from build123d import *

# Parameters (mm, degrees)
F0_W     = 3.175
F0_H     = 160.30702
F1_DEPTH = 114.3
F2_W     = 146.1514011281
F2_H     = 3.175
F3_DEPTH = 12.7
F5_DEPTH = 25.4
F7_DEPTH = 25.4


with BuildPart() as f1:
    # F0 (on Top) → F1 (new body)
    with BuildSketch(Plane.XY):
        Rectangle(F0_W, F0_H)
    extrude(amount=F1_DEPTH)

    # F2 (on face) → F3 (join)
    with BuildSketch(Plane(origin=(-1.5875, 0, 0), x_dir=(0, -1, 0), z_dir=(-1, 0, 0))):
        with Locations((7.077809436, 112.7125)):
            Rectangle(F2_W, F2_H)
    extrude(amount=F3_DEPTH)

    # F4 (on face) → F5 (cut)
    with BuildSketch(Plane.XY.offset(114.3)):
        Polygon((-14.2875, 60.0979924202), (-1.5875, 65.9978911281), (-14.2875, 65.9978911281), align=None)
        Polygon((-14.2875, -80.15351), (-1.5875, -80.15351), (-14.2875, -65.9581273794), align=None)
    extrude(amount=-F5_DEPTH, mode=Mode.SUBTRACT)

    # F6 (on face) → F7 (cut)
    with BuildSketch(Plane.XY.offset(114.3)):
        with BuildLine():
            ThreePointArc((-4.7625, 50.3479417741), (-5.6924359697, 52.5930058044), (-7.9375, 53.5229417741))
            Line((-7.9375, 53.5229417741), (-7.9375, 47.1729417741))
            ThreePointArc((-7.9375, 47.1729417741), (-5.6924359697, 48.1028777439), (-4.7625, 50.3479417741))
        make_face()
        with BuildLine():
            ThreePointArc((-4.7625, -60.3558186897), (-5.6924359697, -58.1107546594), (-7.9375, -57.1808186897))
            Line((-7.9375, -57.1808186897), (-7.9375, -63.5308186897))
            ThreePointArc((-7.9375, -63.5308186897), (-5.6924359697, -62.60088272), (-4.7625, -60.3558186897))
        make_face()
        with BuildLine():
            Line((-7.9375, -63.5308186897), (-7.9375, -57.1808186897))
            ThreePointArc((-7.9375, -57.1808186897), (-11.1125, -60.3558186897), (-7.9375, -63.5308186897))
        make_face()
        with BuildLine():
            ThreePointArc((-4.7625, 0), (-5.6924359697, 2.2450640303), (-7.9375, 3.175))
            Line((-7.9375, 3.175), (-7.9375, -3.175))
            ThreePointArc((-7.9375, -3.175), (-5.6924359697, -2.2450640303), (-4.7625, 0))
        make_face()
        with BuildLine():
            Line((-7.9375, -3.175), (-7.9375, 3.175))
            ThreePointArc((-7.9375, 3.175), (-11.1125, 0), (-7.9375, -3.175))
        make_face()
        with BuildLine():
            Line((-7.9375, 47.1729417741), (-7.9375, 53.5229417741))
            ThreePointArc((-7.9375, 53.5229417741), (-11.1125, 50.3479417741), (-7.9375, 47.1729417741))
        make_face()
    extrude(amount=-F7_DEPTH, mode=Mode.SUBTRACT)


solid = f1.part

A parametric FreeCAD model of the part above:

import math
import FreeCAD as App
import Part
import Sketcher
from FreeCAD import Vector
Q = App.Units.Quantity

doc = App.newDocument("Part")
body = doc.addObject("PartDesign::Body", "Body")

sketch1 = doc.addObject("Sketcher::SketchObject", "Sketch")
body.addObject(sketch1)
sketch1.AttachmentSupport = (doc.XY_Plane, [""])
sketch1.MapMode = "FlatFace"
sketch1.addGeometry([
    Part.LineSegment(Vector(-1.6, 80.2, 0), Vector(-1.6, -80.2, 0)),
    Part.LineSegment(Vector(-1.6, -80.2, 0), Vector(1.6, -80.2, 0)),
    Part.LineSegment(Vector(1.6, -80.2, 0), Vector(1.6, 80.2, 0)),
    Part.LineSegment(Vector(1.6, 80.2, 0), Vector(-1.6, 80.2, 0)),
], False)
sketch1.addConstraint([
    Sketcher.Constraint("Coincident", 0, 2, 1, 1),
    Sketcher.Constraint("Coincident", 1, 2, 2, 1),
    Sketcher.Constraint("Coincident", 2, 2, 3, 1),
    Sketcher.Constraint("Coincident", 3, 2, 0, 1),
    Sketcher.Constraint("Vertical", 0),
    Sketcher.Constraint("Horizontal", 1),
    Sketcher.Constraint("Vertical", 2),
    Sketcher.Constraint("Horizontal", 3),
    Sketcher.Constraint("Symmetric", 0, 2, 2, 2, -1, 1),
    Sketcher.Constraint("DistanceX", 1, 1, 1, 2, Q("0.125 in")),
    Sketcher.Constraint("DistanceY", 0, 2, 0, 1, Q("6.3113 in")),
])
pad1 = doc.addObject("PartDesign::Pad", "Pad")
body.addObject(pad1)
pad1.Profile = sketch1
pad1.Length = Q("4.5 in")

sketch2 = doc.addObject("Sketcher::SketchObject", "Sketch001")
body.addObject(sketch2)
sketch2.AttachmentSupport = (doc.YZ_Plane, [""])
sketch2.MapMode = "FlatFace"
sketch2.AttachmentOffset = App.Placement(Vector(0, 0, -0.0625 * 25.4), App.Rotation())
sketch2.addGeometry([
    Part.LineSegment(Vector(66, 114.3, 0), Vector(66, 111.1, 0)),
    Part.LineSegment(Vector(66, 111.1, 0), Vector(-80.2, 111.1, 0)),
    Part.LineSegment(Vector(-80.2, 111.1, 0), Vector(-80.2, 114.3, 0)),
    Part.LineSegment(Vector(-80.2, 114.3, 0), Vector(66, 114.3, 0)),
], False)
sketch2.addConstraint([
    Sketcher.Constraint("Coincident", 0, 2, 1, 1),
    Sketcher.Constraint("Coincident", 1, 2, 2, 1),
    Sketcher.Constraint("Coincident", 2, 2, 3, 1),
    Sketcher.Constraint("Coincident", 3, 2, 0, 1),
    Sketcher.Constraint("Vertical", 0),
    Sketcher.Constraint("Horizontal", 1),
    Sketcher.Constraint("Vertical", 2),
    Sketcher.Constraint("Horizontal", 3),
    Sketcher.Constraint("DistanceY", -1, 1, 2, 2, Q("4.5 in")),
    Sketcher.Constraint("DistanceY", 0, 2, 0, 1, Q("0.125 in")),
    Sketcher.Constraint("DistanceX", 1, 2, 1, 1, 146.151401),
    Sketcher.Constraint("DistanceX", -1, 1, 0, 2, 65.997891),
])
pad2 = doc.addObject("PartDesign::Pad", "Pad001")
body.addObject(pad2)
pad2.Profile = sketch2
pad2.Length = Q("0.5 in")
pad2.Reversed = True

sketch3 = doc.addObject("Sketcher::SketchObject", "Sketch002")
body.addObject(sketch3)
sketch3.AttachmentSupport = (doc.XY_Plane, [""])
sketch3.MapMode = "FlatFace"
sketch3.AttachmentOffset = App.Placement(Vector(0, 0, 4.5 * 25.4), App.Rotation())
sketch3.addGeometry([
    Part.LineSegment(Vector(-14, 60, 0), Vector(-2, 66, 0)),
    Part.LineSegment(Vector(-2, 66, 0), Vector(-14, 66, 0)),
    Part.LineSegment(Vector(-14, 66, 0), Vector(-14, 60, 0)),
    Part.LineSegment(Vector(-14, -80, 0), Vector(-2, -80, 0)),
    Part.LineSegment(Vector(-2, -80, 0), Vector(-14, -66, 0)),
    Part.LineSegment(Vector(-14, -66, 0), Vector(-14, -80, 0)),
], False)
sketch3.addConstraint([
    Sketcher.Constraint("Coincident", 0, 2, 1, 1),
    Sketcher.Constraint("Coincident", 1, 2, 2, 1),
    Sketcher.Constraint("Coincident", 2, 2, 0, 1),
    Sketcher.Constraint("Coincident", 3, 2, 4, 1),
    Sketcher.Constraint("Coincident", 4, 2, 5, 1),
    Sketcher.Constraint("Coincident", 5, 2, 3, 1),
    Sketcher.Constraint("Horizontal", 1),
    Sketcher.Constraint("Vertical", 2),
    Sketcher.Constraint("Horizontal", 3),
    Sketcher.Constraint("Vertical", 5),
    Sketcher.Constraint("Vertical", 0, 2, 3, 2),
    Sketcher.Constraint("Vertical", 2, 2, 4, 2),
    Sketcher.Constraint("DistanceX", 1, 2, 1, 1, Q("0.5 in")),
    Sketcher.Constraint("DistanceX", 0, 2, -1, 1, Q("0.0625 in")),
    Sketcher.Constraint("DistanceY", 2, 2, 2, 1, 5.899899),
    Sketcher.Constraint("DistanceY", 3, 2, 0, 2, 146.151401),
    Sketcher.Constraint("Distance", 4, 19.04728),
    Sketcher.Constraint("DistanceY", -1, 1, 0, 2, 65.997891),
])
pocket1 = doc.addObject("PartDesign::Pocket", "Pocket")
body.addObject(pocket1)
pocket1.Profile = sketch3
pocket1.Length = Q("1 in")

sketch4 = doc.addObject("Sketcher::SketchObject", "Sketch003")
body.addObject(sketch4)
sketch4.AttachmentSupport = (doc.XY_Plane, [""])
sketch4.MapMode = "FlatFace"
sketch4.AttachmentOffset = App.Placement(Vector(0, 0, 4.5 * 25.4), App.Rotation())
sketch4.addGeometry([
    Part.ArcOfCircle(Part.Circle(Vector(-7.9, 50.3, 0), Vector(0, 0, 1), 3.2), math.radians(0), math.radians(90)),
    Part.ArcOfCircle(Part.Circle(Vector(-7.9, 50.3, 0), Vector(0, 0, 1), 3.2), math.radians(90), math.radians(270)),
    Part.ArcOfCircle(Part.Circle(Vector(-7.9, 50.3, 0), Vector(0, 0, 1), 3.2), math.radians(-90), math.radians(0)),
    Part.ArcOfCircle(Part.Circle(Vector(-7.9, -60.4, 0), Vector(0, 0, 1), 3.2), math.radians(0), math.radians(90)),
    Part.ArcOfCircle(Part.Circle(Vector(-7.9, -60.4, 0), Vector(0, 0, 1), 3.2), math.radians(90), math.radians(270)),
    Part.ArcOfCircle(Part.Circle(Vector(-7.9, -60.4, 0), Vector(0, 0, 1), 3.2), math.radians(-90), math.radians(0)),
    Part.ArcOfCircle(Part.Circle(Vector(-7.9, 0, 0), Vector(0, 0, 1), 3.2), math.radians(0), math.radians(90)),
    Part.ArcOfCircle(Part.Circle(Vector(-7.9, 0, 0), Vector(0, 0, 1), 3.2), math.radians(90), math.radians(270)),
    Part.ArcOfCircle(Part.Circle(Vector(-7.9, 0, 0), Vector(0, 0, 1), 3.2), math.radians(-90), math.radians(0)),
], False)
sketch4.addConstraint([
    Sketcher.Constraint("Tangent", 0, 2, 1, 1),
    Sketcher.Constraint("Tangent", 1, 2, 2, 1),
    Sketcher.Constraint("Tangent", 2, 2, 0, 1),
    Sketcher.Constraint("Tangent", 3, 2, 4, 1),
    Sketcher.Constraint("Tangent", 4, 2, 5, 1),
    Sketcher.Constraint("Tangent", 5, 2, 3, 1),
    Sketcher.Constraint("Tangent", 6, 2, 7, 1),
    Sketcher.Constraint("Tangent", 7, 2, 8, 1),
    Sketcher.Constraint("Tangent", 8, 2, 6, 1),
    Sketcher.Constraint("Equal", 2, 3),
    Sketcher.Constraint("Equal", 5, 6),
    Sketcher.Constraint("Symmetric", 6, 2, 7, 2, -1),
    Sketcher.Constraint("PointOnObject", 8, 2, -1),
    Sketcher.Constraint("Horizontal", 1, 3, 2, 2),
    Sketcher.Constraint("Horizontal", 4, 3, 5, 2),
    Sketcher.Constraint("Vertical", 2, 3, 3, 3),
    Sketcher.Constraint("Vertical", 5, 3, 6, 3),
    Sketcher.Constraint("Vertical", 8, 3, 0, 2),
    Sketcher.Constraint("Vertical", 0, 2, 1, 2),
    Sketcher.Constraint("Vertical", 1, 2, 3, 2),
    Sketcher.Constraint("Vertical", 3, 2, 4, 2),
    Sketcher.Constraint("Vertical", 4, 2, 6, 2),
    Sketcher.Constraint("Radius", 0, Q("0.125 in")),
    Sketcher.Constraint("DistanceX", 0, 3, -1, 1, Q("0.3125 in")),
    Sketcher.Constraint("DistanceY", -1, 1, 0, 3, 50.347942),
    Sketcher.Constraint("DistanceY", 3, 3, -1, 1, 60.355819),
])
pocket2 = doc.addObject("PartDesign::Pocket", "Pocket001")
body.addObject(pocket2)
pocket2.Profile = sketch4
pocket2.Length = Q("1 in")

doc.recompute()
